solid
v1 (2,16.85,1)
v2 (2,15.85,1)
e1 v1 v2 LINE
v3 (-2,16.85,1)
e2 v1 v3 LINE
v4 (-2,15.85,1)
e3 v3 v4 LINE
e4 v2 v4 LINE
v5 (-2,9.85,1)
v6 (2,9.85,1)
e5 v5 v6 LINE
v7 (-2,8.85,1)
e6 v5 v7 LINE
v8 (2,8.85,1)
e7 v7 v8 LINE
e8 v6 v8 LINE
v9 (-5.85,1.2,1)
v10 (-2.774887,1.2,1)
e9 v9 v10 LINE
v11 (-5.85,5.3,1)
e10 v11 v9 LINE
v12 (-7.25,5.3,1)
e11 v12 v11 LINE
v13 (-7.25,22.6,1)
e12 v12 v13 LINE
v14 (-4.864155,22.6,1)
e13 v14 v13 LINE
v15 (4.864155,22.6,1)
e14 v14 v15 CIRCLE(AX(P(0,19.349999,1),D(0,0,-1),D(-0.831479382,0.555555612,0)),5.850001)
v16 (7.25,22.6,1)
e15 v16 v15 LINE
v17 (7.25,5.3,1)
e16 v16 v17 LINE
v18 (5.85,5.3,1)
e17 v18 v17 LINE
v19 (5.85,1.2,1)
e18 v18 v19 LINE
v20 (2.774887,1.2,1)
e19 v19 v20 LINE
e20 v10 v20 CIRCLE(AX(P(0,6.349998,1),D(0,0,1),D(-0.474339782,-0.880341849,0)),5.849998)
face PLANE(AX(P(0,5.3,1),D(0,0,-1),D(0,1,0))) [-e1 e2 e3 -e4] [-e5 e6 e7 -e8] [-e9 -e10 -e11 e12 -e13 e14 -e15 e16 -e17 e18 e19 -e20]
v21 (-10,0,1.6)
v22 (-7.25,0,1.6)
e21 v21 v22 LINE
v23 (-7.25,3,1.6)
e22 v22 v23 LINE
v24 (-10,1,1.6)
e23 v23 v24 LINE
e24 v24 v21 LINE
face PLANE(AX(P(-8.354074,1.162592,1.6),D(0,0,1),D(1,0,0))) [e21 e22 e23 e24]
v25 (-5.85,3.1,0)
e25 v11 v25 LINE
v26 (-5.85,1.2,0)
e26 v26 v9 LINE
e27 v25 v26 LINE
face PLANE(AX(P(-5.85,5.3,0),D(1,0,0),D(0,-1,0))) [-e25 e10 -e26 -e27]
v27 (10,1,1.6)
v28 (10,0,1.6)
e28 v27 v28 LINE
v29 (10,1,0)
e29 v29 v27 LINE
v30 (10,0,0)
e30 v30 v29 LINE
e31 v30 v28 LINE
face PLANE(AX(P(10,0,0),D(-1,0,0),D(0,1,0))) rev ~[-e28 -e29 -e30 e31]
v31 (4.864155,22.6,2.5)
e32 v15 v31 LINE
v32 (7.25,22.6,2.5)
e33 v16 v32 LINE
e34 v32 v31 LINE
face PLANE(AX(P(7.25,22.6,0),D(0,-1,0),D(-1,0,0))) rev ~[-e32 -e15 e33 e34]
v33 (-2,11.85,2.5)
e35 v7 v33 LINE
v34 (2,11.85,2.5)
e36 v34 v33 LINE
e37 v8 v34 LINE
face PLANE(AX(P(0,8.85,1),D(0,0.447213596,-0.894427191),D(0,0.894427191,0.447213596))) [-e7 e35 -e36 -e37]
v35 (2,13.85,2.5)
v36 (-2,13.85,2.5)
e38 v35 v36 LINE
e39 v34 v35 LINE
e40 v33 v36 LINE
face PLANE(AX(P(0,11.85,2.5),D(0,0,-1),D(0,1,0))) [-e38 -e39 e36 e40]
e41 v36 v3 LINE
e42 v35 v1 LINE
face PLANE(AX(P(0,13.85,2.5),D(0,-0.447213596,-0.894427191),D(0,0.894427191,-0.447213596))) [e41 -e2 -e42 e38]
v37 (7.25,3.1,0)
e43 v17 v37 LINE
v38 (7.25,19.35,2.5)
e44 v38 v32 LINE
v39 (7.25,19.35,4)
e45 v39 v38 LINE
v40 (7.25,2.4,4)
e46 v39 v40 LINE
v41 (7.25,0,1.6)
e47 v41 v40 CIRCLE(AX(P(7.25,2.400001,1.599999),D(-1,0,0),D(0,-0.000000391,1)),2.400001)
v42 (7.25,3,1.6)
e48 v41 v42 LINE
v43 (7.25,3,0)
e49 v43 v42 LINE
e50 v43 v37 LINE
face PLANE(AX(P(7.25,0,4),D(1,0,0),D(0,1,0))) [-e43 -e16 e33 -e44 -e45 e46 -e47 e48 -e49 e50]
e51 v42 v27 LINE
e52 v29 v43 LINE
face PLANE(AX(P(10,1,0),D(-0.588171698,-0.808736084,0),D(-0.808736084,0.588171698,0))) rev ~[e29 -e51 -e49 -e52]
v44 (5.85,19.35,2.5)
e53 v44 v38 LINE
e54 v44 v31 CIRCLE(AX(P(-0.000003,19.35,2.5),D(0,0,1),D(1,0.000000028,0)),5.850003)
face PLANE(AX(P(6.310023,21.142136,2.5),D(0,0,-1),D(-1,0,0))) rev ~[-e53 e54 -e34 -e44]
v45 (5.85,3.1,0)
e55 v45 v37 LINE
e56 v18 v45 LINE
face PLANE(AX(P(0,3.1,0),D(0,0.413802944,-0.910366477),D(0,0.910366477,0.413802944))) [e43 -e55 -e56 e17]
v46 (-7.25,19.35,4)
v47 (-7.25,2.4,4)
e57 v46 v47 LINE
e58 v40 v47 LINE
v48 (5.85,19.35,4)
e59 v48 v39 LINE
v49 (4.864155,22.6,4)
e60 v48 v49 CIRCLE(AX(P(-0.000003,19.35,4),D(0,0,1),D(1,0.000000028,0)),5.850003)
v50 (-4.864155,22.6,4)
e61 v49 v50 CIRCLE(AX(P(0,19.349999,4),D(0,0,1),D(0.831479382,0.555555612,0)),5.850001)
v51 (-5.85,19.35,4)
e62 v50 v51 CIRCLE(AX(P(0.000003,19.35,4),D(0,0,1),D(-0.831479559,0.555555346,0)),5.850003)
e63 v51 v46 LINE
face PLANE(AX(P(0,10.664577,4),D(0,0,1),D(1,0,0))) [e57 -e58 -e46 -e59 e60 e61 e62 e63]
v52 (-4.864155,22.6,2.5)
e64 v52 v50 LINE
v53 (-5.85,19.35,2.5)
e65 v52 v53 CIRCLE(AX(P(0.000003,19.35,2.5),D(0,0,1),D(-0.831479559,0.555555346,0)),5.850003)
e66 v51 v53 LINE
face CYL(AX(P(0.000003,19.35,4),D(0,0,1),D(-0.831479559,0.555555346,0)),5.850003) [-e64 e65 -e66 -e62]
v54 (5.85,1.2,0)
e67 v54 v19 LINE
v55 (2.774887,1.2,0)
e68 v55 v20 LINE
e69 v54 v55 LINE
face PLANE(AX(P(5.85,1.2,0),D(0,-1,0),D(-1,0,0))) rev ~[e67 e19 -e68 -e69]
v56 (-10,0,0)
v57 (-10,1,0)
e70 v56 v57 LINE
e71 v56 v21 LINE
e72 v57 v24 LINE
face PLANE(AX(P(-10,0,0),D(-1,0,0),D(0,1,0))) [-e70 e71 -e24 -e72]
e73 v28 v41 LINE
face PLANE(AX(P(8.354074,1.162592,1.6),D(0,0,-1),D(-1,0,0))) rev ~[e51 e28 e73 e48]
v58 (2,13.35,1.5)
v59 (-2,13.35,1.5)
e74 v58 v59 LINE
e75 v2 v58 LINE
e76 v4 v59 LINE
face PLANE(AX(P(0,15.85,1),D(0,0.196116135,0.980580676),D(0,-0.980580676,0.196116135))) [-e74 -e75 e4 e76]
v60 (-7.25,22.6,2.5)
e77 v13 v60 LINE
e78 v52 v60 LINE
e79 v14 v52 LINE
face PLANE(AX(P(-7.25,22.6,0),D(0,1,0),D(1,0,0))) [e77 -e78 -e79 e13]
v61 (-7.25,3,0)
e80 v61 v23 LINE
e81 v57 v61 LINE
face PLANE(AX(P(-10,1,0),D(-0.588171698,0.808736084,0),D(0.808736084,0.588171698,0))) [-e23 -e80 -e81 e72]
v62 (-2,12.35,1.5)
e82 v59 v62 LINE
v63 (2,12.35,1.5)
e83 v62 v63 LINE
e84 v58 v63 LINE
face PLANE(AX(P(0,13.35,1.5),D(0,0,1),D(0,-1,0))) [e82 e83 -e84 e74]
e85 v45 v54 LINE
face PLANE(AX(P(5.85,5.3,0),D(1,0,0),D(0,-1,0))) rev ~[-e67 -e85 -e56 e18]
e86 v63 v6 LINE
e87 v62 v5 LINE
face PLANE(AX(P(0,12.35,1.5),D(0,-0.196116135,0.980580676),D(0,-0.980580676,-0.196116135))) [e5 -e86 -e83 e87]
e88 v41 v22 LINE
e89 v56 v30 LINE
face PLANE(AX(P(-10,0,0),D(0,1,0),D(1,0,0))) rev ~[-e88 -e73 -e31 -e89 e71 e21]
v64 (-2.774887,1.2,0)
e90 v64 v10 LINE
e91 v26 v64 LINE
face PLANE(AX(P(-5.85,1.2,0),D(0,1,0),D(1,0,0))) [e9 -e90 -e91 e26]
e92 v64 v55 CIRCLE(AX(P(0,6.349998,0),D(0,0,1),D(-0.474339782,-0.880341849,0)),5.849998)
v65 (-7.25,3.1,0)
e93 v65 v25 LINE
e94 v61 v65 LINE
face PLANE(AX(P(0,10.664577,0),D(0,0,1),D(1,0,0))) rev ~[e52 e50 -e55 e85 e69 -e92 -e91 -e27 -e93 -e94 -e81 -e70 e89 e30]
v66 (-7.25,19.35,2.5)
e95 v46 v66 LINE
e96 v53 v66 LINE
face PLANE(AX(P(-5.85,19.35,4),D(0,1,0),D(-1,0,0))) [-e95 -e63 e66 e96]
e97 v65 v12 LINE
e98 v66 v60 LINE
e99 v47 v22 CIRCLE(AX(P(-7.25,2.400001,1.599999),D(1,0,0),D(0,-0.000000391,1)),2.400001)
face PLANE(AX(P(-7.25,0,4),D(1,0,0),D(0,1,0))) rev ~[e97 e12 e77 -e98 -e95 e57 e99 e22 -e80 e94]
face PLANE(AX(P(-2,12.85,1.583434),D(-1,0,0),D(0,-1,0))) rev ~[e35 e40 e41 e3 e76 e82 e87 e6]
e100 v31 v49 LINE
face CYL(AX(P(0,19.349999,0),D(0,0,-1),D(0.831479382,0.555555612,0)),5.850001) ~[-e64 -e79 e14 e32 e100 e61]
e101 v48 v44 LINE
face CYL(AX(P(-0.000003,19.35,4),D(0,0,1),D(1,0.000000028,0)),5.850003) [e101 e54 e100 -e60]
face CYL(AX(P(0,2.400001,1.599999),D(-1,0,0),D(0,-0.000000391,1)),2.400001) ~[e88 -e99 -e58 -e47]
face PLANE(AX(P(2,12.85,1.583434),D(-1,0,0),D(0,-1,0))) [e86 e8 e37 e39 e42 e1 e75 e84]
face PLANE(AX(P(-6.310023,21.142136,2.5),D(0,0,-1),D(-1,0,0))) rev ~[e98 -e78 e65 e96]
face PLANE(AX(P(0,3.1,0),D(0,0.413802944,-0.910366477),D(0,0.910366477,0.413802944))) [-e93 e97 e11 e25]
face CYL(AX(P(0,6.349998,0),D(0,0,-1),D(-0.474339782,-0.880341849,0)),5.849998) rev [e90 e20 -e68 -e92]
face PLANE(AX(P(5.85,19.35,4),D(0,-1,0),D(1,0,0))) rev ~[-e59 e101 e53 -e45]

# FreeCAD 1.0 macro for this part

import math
import FreeCAD as App
import Part
import Sketcher

V = App.Vector

doc = App.newDocument("Part")
body = doc.addObject("PartDesign::Body", "Body")

# Sketch on XY plane
sketch1 = body.newObject("Sketcher::SketchObject", "Sketch")
sketch1.AttachmentSupport = (doc.getObject("XY_Plane"), [""])
sketch1.MapMode = "FlatFace"
sketch1.addGeometry(Part.LineSegment(V(-10, 0, 0), V(10, 0, 0)), False)
sketch1.addGeometry(Part.LineSegment(V(10, 0, 0), V(10, 1, 0)), False)
sketch1.addGeometry(Part.LineSegment(V(10, 1, 0), V(7.25, 3, 0)), False)
sketch1.addGeometry(Part.LineSegment(V(7.25, 3, 0), V(7.25, 22.6, 0)), False)
sketch1.addGeometry(Part.LineSegment(V(7.25, 22.6, 0), V(4.864155, 22.6, 0)), False)
sketch1.addGeometry(Part.ArcOfCircle(Part.Circle(V(0, 19.349999, 0), V(0, 0, 1), 5.850001), math.radians(33.748992), math.radians(146.251008)), False)
sketch1.addGeometry(Part.LineSegment(V(-4.864155, 22.6, 0), V(-7.25, 22.6, 0)), False)
sketch1.addGeometry(Part.LineSegment(V(-7.25, 22.6, 0), V(-7.25, 3, 0)), False)
sketch1.addGeometry(Part.LineSegment(V(-7.25, 3, 0), V(-10, 1, 0)), False)
sketch1.addGeometry(Part.LineSegment(V(-10, 1, 0), V(-10, 0, 0)), False)
sketch1.addConstraint(Sketcher.Constraint("Coincident", 0, 2, 1, 1))
sketch1.addConstraint(Sketcher.Constraint("Coincident", 1, 2, 2, 1))
sketch1.addConstraint(Sketcher.Constraint("Coincident", 2, 2, 3, 1))
sketch1.addConstraint(Sketcher.Constraint("Coincident", 3, 2, 4, 1))
sketch1.addConstraint(Sketcher.Constraint("Coincident", 4, 2, 5, 1))
sketch1.addConstraint(Sketcher.Constraint("Coincident", 5, 2, 6, 1))
sketch1.addConstraint(Sketcher.Constraint("Coincident", 6, 2, 7, 1))
sketch1.addConstraint(Sketcher.Constraint("Coincident", 7, 2, 8, 1))
sketch1.addConstraint(Sketcher.Constraint("Coincident", 8, 2, 9, 1))
sketch1.addConstraint(Sketcher.Constraint("Coincident", 9, 2, 0, 1))
sketch1.addConstraint(Sketcher.Constraint("Horizontal", 0))
sketch1.addConstraint(Sketcher.Constraint("Vertical", 1))
sketch1.addConstraint(Sketcher.Constraint("Vertical", 3))
sketch1.addConstraint(Sketcher.Constraint("Horizontal", 4))
sketch1.addConstraint(Sketcher.Constraint("Horizontal", 6))
sketch1.addConstraint(Sketcher.Constraint("Vertical", 7))
sketch1.addConstraint(Sketcher.Constraint("Vertical", 9))
sketch1.addConstraint(Sketcher.Constraint("Symmetric", 0, 2, 9, 2, -1, 1))
sketch1.addConstraint(Sketcher.Constraint("Symmetric", 4, 2, 5, 2, -2))
sketch1.addConstraint(Sketcher.Constraint("Symmetric", 2, 2, 7, 2, -2))
sketch1.addConstraint(Sketcher.Constraint("Horizontal", 1, 2, 8, 2))
sketch1.addConstraint(Sketcher.Constraint("DistanceX", 0, 1, 0, 2, 20.0))
sketch1.addConstraint(Sketcher.Constraint("DistanceY", 1, 1, 1, 2, 1.0))
sketch1.addConstraint(Sketcher.Constraint("Radius", 5, 5.850001))
sketch1.addConstraint(Sketcher.Constraint("DistanceY", 3, 1, 3, 2, 19.6))
sketch1.addConstraint(Sketcher.Constraint("DistanceY", -1, 1, 2, 2, 3.0))
sketch1.addConstraint(Sketcher.Constraint("DistanceX", 6, 2, 3, 2, 14.5))
sketch1.addConstraint(Sketcher.Constraint("DistanceY", -1, 1, 5, 3, 19.349999))
pad1 = body.newObject("PartDesign::Pad", "Pad")
pad1.Profile = sketch1
pad1.Length = 4

# Sketch on XY plane
sketch2 = body.newObject("Sketcher::SketchObject", "Sketch001")
sketch2.AttachmentSupport = (doc.getObject("XY_Plane"), [""])
sketch2.MapMode = "FlatFace"
sketch2.AttachmentOffset = App.Placement(V(0, 0, 4), App.Rotation())
sketch2.addGeometry(Part.ArcOfCircle(Part.Circle(V(0.000003, 19.35, 0), V(0, 0, 1), 5.850003), math.radians(146.251026), math.radians(179.999998)), False)
sketch2.addGeometry(Part.LineSegment(V(-4.864155, 22.6, 0), V(-7.25, 22.6, 0)), False)
sketch2.addGeometry(Part.LineSegment(V(-7.25, 22.6, 0), V(-7.25, 19.35, 0)), False)
sketch2.addGeometry(Part.LineSegment(V(-7.25, 19.35, 0), V(-5.85, 19.35, 0)), False)
sketch2.addGeometry(Part.ArcOfCircle(Part.Circle(V(-0.000003, 19.35, 0), V(0, 0, 1), 5.850003), math.radians(0.000002), math.radians(33.748974)), False)
sketch2.addGeometry(Part.LineSegment(V(5.85, 19.35, 0), V(7.25, 19.35, 0)), False)
sketch2.addGeometry(Part.LineSegment(V(7.25, 19.35, 0), V(7.25, 22.6, 0)), False)
sketch2.addGeometry(Part.LineSegment(V(7.25, 22.6, 0), V(4.864155, 22.6, 0)), False)
sketch2.addConstraint(Sketcher.Constraint("Coincident", 0, 1, 1, 1))
sketch2.addConstraint(Sketcher.Constraint("Coincident", 1, 2, 2, 1))
sketch2.addConstraint(Sketcher.Constraint("Coincident", 2, 2, 3, 1))
sketch2.addConstraint(Sketcher.Constraint("Coincident", 3, 2, 0, 2))
sketch2.addConstraint(Sketcher.Constraint("Coincident", 4, 1, 5, 1))
sketch2.addConstraint(Sketcher.Constraint("Coincident", 5, 2, 6, 1))
sketch2.addConstraint(Sketcher.Constraint("Coincident", 6, 2, 7, 1))
sketch2.addConstraint(Sketcher.Constraint("Coincident", 7, 2, 4, 2))
sketch2.addConstraint(Sketcher.Constraint("Horizontal", 1))
sketch2.addConstraint(Sketcher.Constraint("Vertical", 2))
sketch2.addConstraint(Sketcher.Constraint("Horizontal", 3))
sketch2.addConstraint(Sketcher.Constraint("Horizontal", 5))
sketch2.addConstraint(Sketcher.Constraint("Vertical", 6))
sketch2.addConstraint(Sketcher.Constraint("Horizontal", 7))
sketch2.addConstraint(Sketcher.Constraint("Coincident", 4, 3, 0, 3))
sketch2.addConstraint(Sketcher.Constraint("Equal", 0, 4))
sketch2.addConstraint(Sketcher.Constraint("Symmetric", 3, 2, 4, 1, -2))
sketch2.addConstraint(Sketcher.Constraint("Symmetric", 1, 2, 6, 2, -2))
sketch2.addConstraint(Sketcher.Constraint("Horizontal", 4, 3, 2, 2))
sketch2.addConstraint(Sketcher.Constraint("DistanceX", 3, 1, 3, 2, 1.4))
sketch2.addConstraint(Sketcher.Constraint("DistanceY", 2, 2, 2, 1, 3.25))
sketch2.addConstraint(Sketcher.Constraint("DistanceY", -1, 1, 0, 1, 22.6))
sketch2.addConstraint(Sketcher.Constraint("DistanceX", 3, 2, 4, 1, 11.7))
pocket1 = body.newObject("PartDesign::Pocket", "Pocket")
pocket1.Profile = sketch2
pocket1.Length = 1.5

# Sketch on XY plane
sketch3 = body.newObject("Sketcher::SketchObject", "Sketch002")
sketch3.AttachmentSupport = (doc.getObject("XY_Plane"), [""])
sketch3.MapMode = "FlatFace"
sketch3.AttachmentOffset = App.Placement(V(0, 0, 4), App.Rotation())
sketch3.addGeometry(Part.LineSegment(V(-7.25, 3, 0), V(-10, 1, 0)), False)
sketch3.addGeometry(Part.LineSegment(V(-10, 1, 0), V(-10, 0, 0)), False)
sketch3.addGeometry(Part.LineSegment(V(-10, 0, 0), V(-7.25, 0, 0)), False)
sketch3.addGeometry(Part.LineSegment(V(-7.25, 0, 0), V(-7.25, 3, 0)), False)
sketch3.addGeometry(Part.LineSegment(V(10, 1, 0), V(7.25, 3, 0)), False)
sketch3.addGeometry(Part.LineSegment(V(7.25, 3, 0), V(7.25, 0, 0)), False)
sketch3.addGeometry(Part.LineSegment(V(7.25, 0, 0), V(10, 0, 0)), False)
sketch3.addGeometry(Part.LineSegment(V(10, 0, 0), V(10, 1, 0)), False)
sketch3.addConstraint(Sketcher.Constraint("Coincident", 0, 2, 1, 1))
sketch3.addConstraint(Sketcher.Constraint("Coincident", 1, 2, 2, 1))
sketch3.addConstraint(Sketcher.Constraint("Coincident", 2, 2, 3, 1))
sketch3.addConstraint(Sketcher.Constraint("Coincident", 3, 2, 0, 1))
sketch3.addConstraint(Sketcher.Constraint("Coincident", 4, 2, 5, 1))
sketch3.addConstraint(Sketcher.Constraint("Coincident", 5, 2, 6, 1))
sketch3.addConstraint(Sketcher.Constraint("Coincident", 6, 2, 7, 1))
sketch3.addConstraint(Sketcher.Constraint("Coincident", 7, 2, 4, 1))
sketch3.addConstraint(Sketcher.Constraint("Vertical", 1))
sketch3.addConstraint(Sketcher.Constraint("Horizontal", 2))
sketch3.addConstraint(Sketcher.Constraint("Vertical", 3))
sketch3.addConstraint(Sketcher.Constraint("Vertical", 5))
sketch3.addConstraint(Sketcher.Constraint("Horizontal", 6))
sketch3.addConstraint(Sketcher.Constraint("Vertical", 7))
sketch3.addConstraint(Sketcher.Constraint("Symmetric", 2, 2, 5, 2, -1, 1))
sketch3.addConstraint(Sketcher.Constraint("Symmetric", 1, 2, 6, 2, -2))
sketch3.addConstraint(Sketcher.Constraint("Horizontal", 3, 2, 4, 2))
sketch3.addConstraint(Sketcher.Constraint("Horizontal", 0, 2, 7, 2))
sketch3.addConstraint(Sketcher.Constraint("DistanceY", 1, 2, 1, 1, 1.0))
sketch3.addConstraint(Sketcher.Constraint("DistanceY", 3, 1, 3, 2, 3.0))
sketch3.addConstraint(Sketcher.Constraint("DistanceX", 0, 2, -1, 1, 10.0))
sketch3.addConstraint(Sketcher.Constraint("DistanceX", 2, 1, 2, 2, 2.75))
pocket2 = body.newObject("PartDesign::Pocket", "Pocket001")
pocket2.Profile = sketch3
pocket2.Length = 2.4

# Sketch on YZ plane
sketch4 = body.newObject("Sketcher::SketchObject", "Sketch003")
sketch4.AttachmentSupport = (doc.getObject("YZ_Plane"), [""])
sketch4.MapMode = "FlatFace"
sketch4.addGeometry(Part.ArcOfCircle(Part.Circle(V(2.400001, 1.599999, 0), V(0, 0, 1), 2.400001), math.radians(90.000022), math.radians(179.999978)), False)
sketch4.addGeometry(Part.LineSegment(V(2.4, 4, 0), V(0, 4, 0)), False)
sketch4.addGeometry(Part.LineSegment(V(0, 4, 0), V(0, 1.6, 0)), False)
sketch4.addConstraint(Sketcher.Constraint("Tangent", 0, 1, 1, 1))
sketch4.addConstraint(Sketcher.Constraint("Coincident", 1, 2, 2, 1))
sketch4.addConstraint(Sketcher.Constraint("Tangent", 2, 2, 0, 2))
sketch4.addConstraint(Sketcher.Constraint("Horizontal", 1))
sketch4.addConstraint(Sketcher.Constraint("Vertical", 2))
sketch4.addConstraint(Sketcher.Constraint("PointOnObject", 1, 2, -2))
sketch4.addConstraint(Sketcher.Constraint("Radius", 0, 2.400001))
sketch4.addConstraint(Sketcher.Constraint("DistanceY", -1, 1, 0, 1, 4.0))
pocket3 = body.newObject("PartDesign::Pocket", "Pocket002")
pocket3.Profile = sketch4
pocket3.Type = "ThroughAll"
pocket3.Midplane = True

# Sketch on YZ plane
sketch5 = body.newObject("Sketcher::SketchObject", "Sketch004")
sketch5.AttachmentSupport = (doc.getObject("YZ_Plane"), [""])
sketch5.MapMode = "FlatFace"
sketch5.addGeometry(Part.LineSegment(V(5.3, 1, 0), V(3.1, 0, 0)), False)
sketch5.addGeometry(Part.LineSegment(V(3.1, 0, 0), V(25.2, 0, 0)), False)
sketch5.addGeometry(Part.LineSegment(V(25.2, 0, 0), V(25.2, 1, 0)), False)
sketch5.addGeometry(Part.LineSegment(V(25.2, 1, 0), V(5.3, 1, 0)), False)
sketch5.addConstraint(Sketcher.Constraint("Coincident", 0, 2, 1, 1))
sketch5.addConstraint(Sketcher.Constraint("Coincident", 1, 2, 2, 1))
sketch5.addConstraint(Sketcher.Constraint("Coincident", 2, 2, 3, 1))
sketch5.addConstraint(Sketcher.Constraint("Coincident", 3, 2, 0, 1))
sketch5.addConstraint(Sketcher.Constraint("Horizontal", 1))
sketch5.addConstraint(Sketcher.Constraint("Vertical", 2))
sketch5.addConstraint(Sketcher.Constraint("Horizontal", 3))
sketch5.addConstraint(Sketcher.Constraint("PointOnObject", 0, 2, -1))
sketch5.addConstraint(Sketcher.Constraint("DistanceY", 2, 1, 2, 2, 1.0))
sketch5.addConstraint(Sketcher.Constraint("DistanceX", 1, 1, 1, 2, 22.1))
sketch5.addConstraint(Sketcher.Constraint("DistanceX", 3, 2, 3, 1, 19.9))
sketch5.addConstraint(Sketcher.Constraint("DistanceX", -1, 1, 0, 2, 3.1))
pocket4 = body.newObject("PartDesign::Pocket", "Pocket003")
pocket4.Profile = sketch5
pocket4.Type = "ThroughAll"
pocket4.Midplane = True

# Sketch on XY plane
sketch6 = body.newObject("Sketcher::SketchObject", "Sketch005")
sketch6.AttachmentSupport = (doc.getObject("XY_Plane"), [""])
sketch6.MapMode = "FlatFace"
sketch6.addGeometry(Part.LineSegment(V(-5.85, 5.3, 0), V(-5.85, 1.2, 0)), False)
sketch6.addGeometry(Part.LineSegment(V(-5.85, 1.2, 0), V(-2.774887, 1.2, 0)), False)
sketch6.addGeometry(Part.ArcOfCircle(Part.Circle(V(0, 6.349998, 0), V(0, 0, 1), 5.849998), math.radians(-118.316372), math.radians(-61.683628)), False)
sketch6.addGeometry(Part.LineSegment(V(2.774887, 1.2, 0), V(5.85, 1.2, 0)), False)
sketch6.addGeometry(Part.LineSegment(V(5.85, 1.2, 0), V(5.85, 5.3, 0)), False)
sketch6.addGeometry(Part.LineSegment(V(5.85, 5.3, 0), V(-5.85, 5.3, 0)), False)
sketch6.addConstraint(Sketcher.Constraint("Coincident", 0, 2, 1, 1))
sketch6.addConstraint(Sketcher.Constraint("Coincident", 1, 2, 2, 1))
sketch6.addConstraint(Sketcher.Constraint("Coincident", 2, 2, 3, 1))
sketch6.addConstraint(Sketcher.Constraint("Coincident", 3, 2, 4, 1))
sketch6.addConstraint(Sketcher.Constraint("Coincident", 4, 2, 5, 1))
sketch6.addConstraint(Sketcher.Constraint("Coincident", 5, 2, 0, 1))
sketch6.addConstraint(Sketcher.Constraint("Vertical", 0))
sketch6.addConstraint(Sketcher.Constraint("Horizontal", 1))
sketch6.addConstraint(Sketcher.Constraint("Horizontal", 3))
sketch6.addConstraint(Sketcher.Constraint("Vertical", 4))
sketch6.addConstraint(Sketcher.Constraint("Horizontal", 5))
sketch6.addConstraint(Sketcher.Constraint("Symmetric", 1, 2, 2, 2, -2))
sketch6.addConstraint(Sketcher.Constraint("Equal", 1, 3))
sketch6.addConstraint(Sketcher.Constraint("Radius", 2, 5.849998))
sketch6.addConstraint(Sketcher.Constraint("DistanceX", 5, 2, 5, 1, 11.7))
sketch6.addConstraint(Sketcher.Constraint("DistanceY", 0, 2, 0, 1, 4.1))
sketch6.addConstraint(Sketcher.Constraint("DistanceY", -1, 1, 0, 2, 1.2))
sketch6.addConstraint(Sketcher.Constraint("DistanceY", -1, 1, 2, 3, 6.349998))
pocket5 = body.newObject("PartDesign::Pocket", "Pocket004")
pocket5.Profile = sketch6
pocket5.Length = 1
pocket5.Reversed = True

# Sketch on YZ plane
sketch7 = body.newObject("Sketcher::SketchObject", "Sketch006")
sketch7.AttachmentSupport = (doc.getObject("YZ_Plane"), [""])
sketch7.MapMode = "FlatFace"
sketch7.addGeometry(Part.LineSegment(V(11.85, 2.5, 0), V(8.85, 1, 0)), False)
sketch7.addGeometry(Part.LineSegment(V(8.85, 1, 0), V(9.85, 1, 0)), False)
sketch7.addGeometry(Part.LineSegment(V(9.85, 1, 0), V(12.35, 1.5, 0)), False)
sketch7.addGeometry(Part.LineSegment(V(12.35, 1.5, 0), V(13.35, 1.5, 0)), False)
sketch7.addGeometry(Part.LineSegment(V(13.35, 1.5, 0), V(15.85, 1, 0)), False)
sketch7.addGeometry(Part.LineSegment(V(15.85, 1, 0), V(16.85, 1, 0)), False)
sketch7.addGeometry(Part.LineSegment(V(16.85, 1, 0), V(13.85, 2.5, 0)), False)
sketch7.addGeometry(Part.LineSegment(V(13.85, 2.5, 0), V(11.85, 2.5, 0)), False)
sketch7.addConstraint(Sketcher.Constraint("Coincident", 0, 2, 1, 1))
sketch7.addConstraint(Sketcher.Constraint("Coincident", 1, 2, 2, 1))
sketch7.addConstraint(Sketcher.Constraint("Coincident", 2, 2, 3, 1))
sketch7.addConstraint(Sketcher.Constraint("Coincident", 3, 2, 4, 1))
sketch7.addConstraint(Sketcher.Constraint("Coincident", 4, 2, 5, 1))
sketch7.addConstraint(Sketcher.Constraint("Coincident", 5, 2, 6, 1))
sketch7.addConstraint(Sketcher.Constraint("Coincident", 6, 2, 7, 1))
sketch7.addConstraint(Sketcher.Constraint("Coincident", 7, 2, 0, 1))
sketch7.addConstraint(Sketcher.Constraint("Horizontal", 1))
sketch7.addConstraint(Sketcher.Constraint("Horizontal", 3))
sketch7.addConstraint(Sketcher.Constraint("Horizontal", 5))
sketch7.addConstraint(Sketcher.Constraint("Horizontal", 7))
sketch7.addConstraint(Sketcher.Constraint("Horizontal", 1, 2, 4, 2))
sketch7.addConstraint(Sketcher.Constraint("Equal", 1, 3))
sketch7.addConstraint(Sketcher.Constraint("Equal", 3, 5))
sketch7.addConstraint(Sketcher.Constraint("Equal", 2, 4))
sketch7.addConstraint(Sketcher.Constraint("Equal", 0, 6))
sketch7.addConstraint(Sketcher.Constraint("DistanceX", 1, 1, 1, 2, 1.0))
sketch7.addConstraint(Sketcher.Constraint("DistanceX", 7, 2, 7, 1, 2.0))
sketch7.addConstraint(Sketcher.Constraint("DistanceY", -1, 1, 0, 2, 1.0))
sketch7.addConstraint(Sketcher.Constraint("DistanceX", 1, 2, 4, 2, 6.0))
sketch7.addConstraint(Sketcher.Constraint("DistanceY", 3, 2, 6, 2, 1.0))
sketch7.addConstraint(Sketcher.Constraint("DistanceY", -1, 1, 2, 2, 1.5))
sketch7.addConstraint(Sketcher.Constraint("DistanceX", -1, 1, 0, 2, 8.85))
pocket6 = body.newObject("PartDesign::Pocket", "Pocket005")
pocket6.Profile = sketch7
pocket6.Length = 4
pocket6.Midplane = True

doc.recompute()
